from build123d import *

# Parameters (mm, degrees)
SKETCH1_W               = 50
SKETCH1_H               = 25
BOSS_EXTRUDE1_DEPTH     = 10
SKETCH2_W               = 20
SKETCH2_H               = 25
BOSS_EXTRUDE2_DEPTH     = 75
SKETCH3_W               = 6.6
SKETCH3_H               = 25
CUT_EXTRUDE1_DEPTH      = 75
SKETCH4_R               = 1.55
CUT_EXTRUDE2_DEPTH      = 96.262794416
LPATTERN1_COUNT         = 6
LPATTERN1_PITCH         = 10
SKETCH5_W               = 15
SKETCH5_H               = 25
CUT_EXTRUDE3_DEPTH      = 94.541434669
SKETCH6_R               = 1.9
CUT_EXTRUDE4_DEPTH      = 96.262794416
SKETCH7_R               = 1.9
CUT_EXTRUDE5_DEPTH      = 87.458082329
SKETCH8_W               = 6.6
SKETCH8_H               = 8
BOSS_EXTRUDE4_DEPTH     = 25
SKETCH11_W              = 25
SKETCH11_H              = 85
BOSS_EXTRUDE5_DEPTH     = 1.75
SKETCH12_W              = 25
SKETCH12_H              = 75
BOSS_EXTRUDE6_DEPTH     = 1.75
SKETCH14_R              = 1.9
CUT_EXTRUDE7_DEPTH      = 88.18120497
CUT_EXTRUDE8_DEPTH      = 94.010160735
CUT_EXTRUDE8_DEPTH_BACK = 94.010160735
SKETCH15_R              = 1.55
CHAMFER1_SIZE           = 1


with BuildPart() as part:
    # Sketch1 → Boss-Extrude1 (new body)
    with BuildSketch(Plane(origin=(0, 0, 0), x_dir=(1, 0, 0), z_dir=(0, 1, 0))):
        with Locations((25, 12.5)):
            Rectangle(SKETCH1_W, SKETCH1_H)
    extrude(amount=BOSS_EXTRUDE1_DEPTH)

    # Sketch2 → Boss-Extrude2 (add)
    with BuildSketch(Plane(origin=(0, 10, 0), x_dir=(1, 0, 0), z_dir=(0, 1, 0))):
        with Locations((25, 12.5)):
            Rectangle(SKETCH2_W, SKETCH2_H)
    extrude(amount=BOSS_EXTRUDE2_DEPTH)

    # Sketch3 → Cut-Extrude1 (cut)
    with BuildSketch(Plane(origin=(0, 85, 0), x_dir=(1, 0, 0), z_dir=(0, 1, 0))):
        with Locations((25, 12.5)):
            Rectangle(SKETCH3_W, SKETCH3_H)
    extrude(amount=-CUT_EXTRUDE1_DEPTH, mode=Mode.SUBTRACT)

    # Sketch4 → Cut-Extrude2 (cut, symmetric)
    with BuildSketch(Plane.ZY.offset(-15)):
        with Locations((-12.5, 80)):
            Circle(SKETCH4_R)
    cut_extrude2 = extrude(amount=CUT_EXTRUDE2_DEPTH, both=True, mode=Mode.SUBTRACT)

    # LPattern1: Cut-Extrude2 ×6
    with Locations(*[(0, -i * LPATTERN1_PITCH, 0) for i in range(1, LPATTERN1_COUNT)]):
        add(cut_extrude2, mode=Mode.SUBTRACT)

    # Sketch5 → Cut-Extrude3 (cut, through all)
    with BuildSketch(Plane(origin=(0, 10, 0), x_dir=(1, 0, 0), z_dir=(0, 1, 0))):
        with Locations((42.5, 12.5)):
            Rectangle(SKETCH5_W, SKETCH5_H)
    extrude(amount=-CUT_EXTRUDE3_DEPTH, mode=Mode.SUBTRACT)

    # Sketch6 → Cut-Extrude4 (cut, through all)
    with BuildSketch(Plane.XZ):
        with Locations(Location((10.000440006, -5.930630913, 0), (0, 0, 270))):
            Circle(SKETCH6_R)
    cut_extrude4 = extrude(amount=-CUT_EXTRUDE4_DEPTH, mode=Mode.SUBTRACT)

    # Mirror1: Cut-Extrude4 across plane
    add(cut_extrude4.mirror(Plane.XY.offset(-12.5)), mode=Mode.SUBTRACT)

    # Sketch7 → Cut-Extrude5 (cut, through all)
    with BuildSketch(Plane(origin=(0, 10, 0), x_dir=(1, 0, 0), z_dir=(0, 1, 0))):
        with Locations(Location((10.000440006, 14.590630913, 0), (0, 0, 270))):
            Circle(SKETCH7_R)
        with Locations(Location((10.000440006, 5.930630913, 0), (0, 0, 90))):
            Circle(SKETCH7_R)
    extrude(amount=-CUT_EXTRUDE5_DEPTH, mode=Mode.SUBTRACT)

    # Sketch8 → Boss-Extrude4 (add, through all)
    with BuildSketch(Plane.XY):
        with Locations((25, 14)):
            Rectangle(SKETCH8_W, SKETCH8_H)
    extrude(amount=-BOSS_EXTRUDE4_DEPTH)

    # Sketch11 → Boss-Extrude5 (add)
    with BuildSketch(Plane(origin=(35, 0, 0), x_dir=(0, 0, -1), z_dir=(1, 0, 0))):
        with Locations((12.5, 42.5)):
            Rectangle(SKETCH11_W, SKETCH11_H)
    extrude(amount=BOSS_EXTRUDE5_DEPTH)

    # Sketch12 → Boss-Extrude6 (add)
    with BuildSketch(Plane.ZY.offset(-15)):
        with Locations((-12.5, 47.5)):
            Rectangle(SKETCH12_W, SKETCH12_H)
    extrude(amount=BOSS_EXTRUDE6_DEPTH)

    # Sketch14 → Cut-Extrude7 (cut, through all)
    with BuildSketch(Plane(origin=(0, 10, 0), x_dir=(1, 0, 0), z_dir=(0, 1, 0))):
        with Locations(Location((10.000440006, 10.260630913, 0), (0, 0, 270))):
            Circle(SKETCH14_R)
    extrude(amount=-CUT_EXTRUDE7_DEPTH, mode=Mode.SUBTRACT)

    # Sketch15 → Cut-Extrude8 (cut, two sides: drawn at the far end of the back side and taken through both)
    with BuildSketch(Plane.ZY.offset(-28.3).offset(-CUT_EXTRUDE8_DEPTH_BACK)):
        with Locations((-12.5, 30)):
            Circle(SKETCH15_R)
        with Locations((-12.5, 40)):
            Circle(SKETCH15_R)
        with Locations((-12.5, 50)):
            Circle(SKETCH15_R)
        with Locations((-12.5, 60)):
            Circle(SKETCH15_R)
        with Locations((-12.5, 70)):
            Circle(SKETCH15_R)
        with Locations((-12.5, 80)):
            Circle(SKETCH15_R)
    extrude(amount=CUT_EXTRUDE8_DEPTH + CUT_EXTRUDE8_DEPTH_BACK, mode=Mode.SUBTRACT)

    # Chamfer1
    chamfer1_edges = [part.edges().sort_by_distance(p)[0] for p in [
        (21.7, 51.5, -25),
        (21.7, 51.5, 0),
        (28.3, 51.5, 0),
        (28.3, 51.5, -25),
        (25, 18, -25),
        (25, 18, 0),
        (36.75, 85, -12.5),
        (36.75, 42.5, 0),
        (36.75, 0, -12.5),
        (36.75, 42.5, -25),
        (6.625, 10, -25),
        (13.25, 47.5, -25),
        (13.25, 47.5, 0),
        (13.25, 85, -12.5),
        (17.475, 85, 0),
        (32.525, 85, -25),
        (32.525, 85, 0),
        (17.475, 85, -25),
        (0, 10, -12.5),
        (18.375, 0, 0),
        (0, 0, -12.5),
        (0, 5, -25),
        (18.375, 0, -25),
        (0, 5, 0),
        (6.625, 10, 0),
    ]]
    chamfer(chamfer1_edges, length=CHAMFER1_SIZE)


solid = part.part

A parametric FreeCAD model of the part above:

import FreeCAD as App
import Part
import Sketcher
from FreeCAD import Vector
Q = App.Units.Quantity


def edges_at(feature, points):
    """Names of the edges that pass closest to the given points."""
    edges = feature.Shape.Edges
    near = lambda p: min(range(len(edges)), key=lambda i: edges[i].distToShape(Part.Vertex(*p))[0])
    return sorted({f"Edge{near(p) + 1}" for p in points})


def add_polygon(sketch, points):
    """Adds a closed chain of lines whose ends are joined by coincident constraints."""
    first, n = sketch.GeometryCount, len(points)
    for a, b in zip(points, points[1:] + points[:1]):
        sketch.addGeometry(Part.LineSegment(App.Vector(*a, 0), App.Vector(*b, 0)), False)
    for i in range(n):
        sketch.addConstraint(Sketcher.Constraint("Coincident", first + i, 2, first + (i + 1) % n, 1))

doc = App.newDocument("Part")
params = doc.addObject("Spreadsheet::Sheet", "Params")
for row, (alias, value) in enumerate([
    ("sketch1_width", "50 mm"),
    ("sketch1_height", "25 mm"),
    ("pad1_length", "10 mm"),
    ("sketch2_width", "20 mm"),
    ("sketch2_height", "25 mm"),
    ("pad2_length", "75 mm"),
    ("sketch3_height", "25 mm"),
    ("sketch3_width", "6.6 mm"),
    ("pocket1_length", "75 mm"),
    ("sketch4_diameter", "3.1 mm"),
    ("pocket2_length", "192.525589 mm"),
    ("linearpattern_pitch", "10 mm"),
    ("sketch5_width", "15 mm"),
    ("sketch5_height", "25 mm"),
    ("sketch6_diameter", "3.8 mm"),
    ("sketch7_diameter", "3.8 mm"),
    ("sketch8_height", "8 mm"),
    ("sketch8_width", "6.6 mm"),
    ("pad3_length", "25 mm"),
    ("sketch9_width", "85 mm"),
    ("sketch9_height", "25 mm"),
    ("pad4_length", "1.75 mm"),
    ("sketch10_width", "75 mm"),
    ("sketch10_height", "25 mm"),
    ("pad5_length", "1.75 mm"),
    ("sketch11_diameter", "3.8 mm"),
    ("sketch12_diameter", "3.1 mm"),
    ("chamfer_size", "1 mm"),
], start=1):
    params.set(f"A{row}", alias)
    params.set(f"B{row}", "=" + value)
    params.setAlias(f"B{row}", alias)

body = doc.addObject("PartDesign::Body", "Body")

# Sketch on XZ plane
sketch1 = body.newObject("Sketcher::SketchObject", "Sketch")
sketch1.AttachmentSupport = (doc.getObject("XZ_Plane"), [""])
sketch1.MapMode = "FlatFace"
add_polygon(sketch1, [(0, -25), (0, 0), (50, 0), (50, -25)])  # lines 0-3
sketch1.addConstraint([
    Sketcher.Constraint("Vertical", 0),
    Sketcher.Constraint("Horizontal", 1),
    Sketcher.Constraint("Vertical", 2),
    Sketcher.Constraint("Horizontal", 3),
    Sketcher.Constraint("Coincident", 0, 2, -1, 1),
    Sketcher.Constraint("DistanceX", 1, 1, 1, 2, Q("50 mm")),
    Sketcher.Constraint("DistanceY", 0, 1, 0, 2, Q("25 mm")),
])
sketch1.setExpression("Constraints[9]", "Params.sketch1_width")
sketch1.setExpression("Constraints[10]", "Params.sketch1_height")
pad1 = body.newObject("PartDesign::Pad", "Pad")
pad1.Profile = sketch1
pad1.setExpression("Length", "Params.pad1_length")
pad1.Reversed = True

# Sketch on XZ plane
sketch2 = body.newObject("Sketcher::SketchObject", "Sketch001")
sketch2.AttachmentSupport = (doc.getObject("XZ_Plane"), [""])
sketch2.MapMode = "FlatFace"
sketch2.AttachmentOffset = App.Placement(Vector(0, 0, -10), App.Rotation())
add_polygon(sketch2, [(15, -25), (15, 0), (35, 0), (35, -25)])  # lines 0-3
sketch2.addConstraint([
    Sketcher.Constraint("Vertical", 0),
    Sketcher.Constraint("Horizontal", 1),
    Sketcher.Constraint("Vertical", 2),
    Sketcher.Constraint("Horizontal", 3),
    Sketcher.Constraint("PointOnObject", 0, 2, -1),
    Sketcher.Constraint("DistanceX", 1, 1, 1, 2, Q("20 mm")),
    Sketcher.Constraint("DistanceY", 0, 1, 0, 2, Q("25 mm")),
    Sketcher.Constraint("DistanceX", -1, 1, 0, 2, Q("15 mm")),
])
sketch2.setExpression("Constraints[9]", "Params.sketch2_width")
sketch2.setExpression("Constraints[10]", "Params.sketch2_height")
pad2 = body.newObject("PartDesign::Pad", "Pad001")
pad2.Profile = sketch2
pad2.setExpression("Length", "Params.pad2_length")
pad2.Reversed = True

# Sketch on XZ plane
sketch3 = body.newObject("Sketcher::SketchObject", "Sketch002")
sketch3.AttachmentSupport = (doc.getObject("XZ_Plane"), [""])
sketch3.MapMode = "FlatFace"
sketch3.AttachmentOffset = App.Placement(Vector(0, 0, -85), App.Rotation())
add_polygon(sketch3, [(22, -25), (22, 0), (28, 0), (28, -25)])  # lines 0-3
sketch3.addConstraint([
    Sketcher.Constraint("Vertical", 0),
    Sketcher.Constraint("Horizontal", 1),
    Sketcher.Constraint("Vertical", 2),
    Sketcher.Constraint("Horizontal", 3),
    Sketcher.Constraint("PointOnObject", 0, 2, -1),
    Sketcher.Constraint("DistanceY", 0, 1, 0, 2, Q("25 mm")),
    Sketcher.Constraint("DistanceX", 1, 1, 1, 2, Q("6.6 mm")),
    Sketcher.Constraint("DistanceX", -1, 1, 0, 2, Q("21.7 mm")),
])
sketch3.setExpression("Constraints[9]", "Params.sketch3_height")
sketch3.setExpression("Constraints[10]", "Params.sketch3_width")
pocket1 = body.newObject("PartDesign::Pocket", "Pocket")
pocket1.Profile = sketch3
pocket1.setExpression("Length", "Params.pocket1_length")
pocket1.Reversed = True

# Sketch on YZ plane
sketch4 = body.newObject("Sketcher::SketchObject", "Sketch003")
sketch4.AttachmentSupport = (doc.getObject("YZ_Plane"), [""])
sketch4.MapMode = "FlatFace"
sketch4.AttachmentOffset = App.Placement(Vector(0, 0, 15), App.Rotation())
sketch4.addGeometry(Part.Circle(Vector(80, -12.5, 0), Vector(0, 0, 1), 1.6), False)
sketch4.addConstraint([
    Sketcher.Constraint("Diameter", 0, Q("3.1 mm")),
    Sketcher.Constraint("DistanceX", -1, 1, 0, 3, Q("80 mm")),
    Sketcher.Constraint("DistanceY", 0, 3, -1, 1, Q("12.5 mm")),
])
sketch4.setExpression("Constraints[0]", "Params.sketch4_diameter")
pocket2 = body.newObject("PartDesign::Pocket", "Pocket001")
pocket2.Profile = sketch4
pocket2.setExpression("Length", "Params.pocket2_length")
pocket2.Midplane = True
doc.recompute()

linearpattern = body.newObject("PartDesign::LinearPattern", "LinearPattern")
linearpattern.Originals = [pocket2]
linearpattern.Direction = (doc.getObject("Y_Axis"), [""])
linearpattern.Mode = "offset"
linearpattern.setExpression("Offset", "Params.linearpattern_pitch")
linearpattern.Occurrences = 6
linearpattern.Reversed = True
body.Tip = linearpattern

# Sketch on XZ plane
sketch5 = body.newObject("Sketcher::SketchObject", "Sketch004")
sketch5.AttachmentSupport = (doc.getObject("XZ_Plane"), [""])
sketch5.MapMode = "FlatFace"
sketch5.AttachmentOffset = App.Placement(Vector(0, 0, -10), App.Rotation())
add_polygon(sketch5, [(35, -25), (35, 0), (50, 0), (50, -25)])  # lines 0-3
sketch5.addConstraint([
    Sketcher.Constraint("Vertical", 0),
    Sketcher.Constraint("Horizontal", 1),
    Sketcher.Constraint("Vertical", 2),
    Sketcher.Constraint("Horizontal", 3),
    Sketcher.Constraint("PointOnObject", 0, 2, -1),
    Sketcher.Constraint("DistanceX", 1, 1, 1, 2, Q("15 mm")),
    Sketcher.Constraint("DistanceY", 0, 1, 0, 2, Q("25 mm")),
    Sketcher.Constraint("DistanceX", -1, 1, 0, 2, Q("35 mm")),
])
sketch5.setExpression("Constraints[9]", "Params.sketch5_width")
sketch5.setExpression("Constraints[10]", "Params.sketch5_height")
pocket3 = body.newObject("PartDesign::Pocket", "Pocket002")
pocket3.Profile = sketch5
pocket3.Type = "ThroughAll"
pocket3.Reversed = True

# Sketch on XZ plane
sketch6 = body.newObject("Sketcher::SketchObject", "Sketch005")
sketch6.AttachmentSupport = (doc.getObject("XZ_Plane"), [""])
sketch6.MapMode = "FlatFace"
sketch6.addGeometry(Part.Circle(Vector(10, -5.9, 0), Vector(0, 0, 1), 1.9), False)
sketch6.addConstraint([
    Sketcher.Constraint("Diameter", 0, Q("3.8 mm")),
    Sketcher.Constraint("DistanceX", -1, 1, 0, 3, Q("10.00044 mm")),
    Sketcher.Constraint("DistanceY", 0, 3, -1, 1, Q("5.930631 mm")),
])
sketch6.setExpression("Constraints[0]", "Params.sketch6_diameter")
pocket4 = body.newObject("PartDesign::Pocket", "Pocket003")
pocket4.Profile = sketch6
pocket4.Type = "ThroughAll"
doc.recompute()

datumplane = body.newObject("PartDesign::Plane", "DatumPlane")
datumplane.AttachmentSupport = (doc.getObject("XY_Plane"), [""])
datumplane.MapMode = "FlatFace"
datumplane.AttachmentOffset = App.Placement(Vector(0, 0, -12.5), App.Rotation())
mirrored = body.newObject("PartDesign::Mirrored", "Mirrored")
mirrored.Originals = [pocket4]
mirrored.MirrorPlane = (datumplane, [""])
body.Tip = mirrored

# Sketch on XZ plane
sketch7 = body.newObject("Sketcher::SketchObject", "Sketch006")
sketch7.AttachmentSupport = (doc.getObject("XZ_Plane"), [""])
sketch7.MapMode = "FlatFace"
sketch7.AttachmentOffset = App.Placement(Vector(0, 0, -10), App.Rotation())
sketch7.addGeometry([
    Part.Circle(Vector(10, -14.6, 0), Vector(0, 0, 1), 1.9),
    Part.Circle(Vector(10, -5.9, 0), Vector(0, 0, 1), 1.9),
], False)
sketch7.addConstraint([
    Sketcher.Constraint("Equal", 0, 1),
    Sketcher.Constraint("Vertical", 0, 3, 1, 3),
    Sketcher.Constraint("Diameter", 0, Q("3.8 mm")),
    Sketcher.Constraint("DistanceY", 0, 3, 1, 3, Q("8.66 mm")),
    Sketcher.Constraint("DistanceX", -1, 1, 0, 3, Q("10.00044 mm")),
    Sketcher.Constraint("DistanceY", 0, 3, -1, 1, Q("14.590631 mm")),
])
sketch7.setExpression("Constraints[2]", "Params.sketch7_diameter")
pocket5 = body.newObject("PartDesign::Pocket", "Pocket004")
pocket5.Profile = sketch7
pocket5.Type = "ThroughAll"
pocket5.Reversed = True

# Sketch on XY plane
sketch8 = body.newObject("Sketcher::SketchObject", "Sketch007")
sketch8.AttachmentSupport = (doc.getObject("XY_Plane"), [""])
sketch8.MapMode = "FlatFace"
add_polygon(sketch8, [(22, 18), (22, 10), (28, 10), (28, 18)])  # lines 0-3
sketch8.addConstraint([
    Sketcher.Constraint("Vertical", 0),
    Sketcher.Constraint("Horizontal", 1),
    Sketcher.Constraint("Vertical", 2),
    Sketcher.Constraint("Horizontal", 3),
    Sketcher.Constraint("DistanceY", 0, 2, 0, 1, Q("8 mm")),
    Sketcher.Constraint("DistanceX", 1, 1, 1, 2, Q("6.6 mm")),
    Sketcher.Constraint("DistanceY", -1, 1, 0, 2, Q("10 mm")),
    Sketcher.Constraint("DistanceX", -1, 1, 0, 2, Q("21.7 mm")),
])
sketch8.setExpression("Constraints[8]", "Params.sketch8_height")
sketch8.setExpression("Constraints[9]", "Params.sketch8_width")
pad3 = body.newObject("PartDesign::Pad", "Pad002")
pad3.Profile = sketch8
pad3.setExpression("Length", "Params.pad3_length")
pad3.Reversed = True

# Sketch on YZ plane
sketch9 = body.newObject("Sketcher::SketchObject", "Sketch008")
sketch9.AttachmentSupport = (doc.getObject("YZ_Plane"), [""])
sketch9.MapMode = "FlatFace"
sketch9.AttachmentOffset = App.Placement(Vector(0, 0, 35), App.Rotation())
add_polygon(sketch9, [(85, 0), (0, 0), (0, -25), (85, -25)])  # lines 0-3
sketch9.addConstraint([
    Sketcher.Constraint("Horizontal", 0),
    Sketcher.Constraint("Vertical", 1),
    Sketcher.Constraint("Horizontal", 2),
    Sketcher.Constraint("Vertical", 3),
    Sketcher.Constraint("Coincident", 0, 2, -1, 1),
    Sketcher.Constraint("DistanceX", 0, 2, 0, 1, Q("85 mm")),
    Sketcher.Constraint("DistanceY", 1, 2, 1, 1, Q("25 mm")),
])
sketch9.setExpression("Constraints[9]", "Params.sketch9_width")
sketch9.setExpression("Constraints[10]", "Params.sketch9_height")
pad4 = body.newObject("PartDesign::Pad", "Pad003")
pad4.Profile = sketch9
pad4.setExpression("Length", "Params.pad4_length")

# Sketch on YZ plane
sketch10 = body.newObject("Sketcher::SketchObject", "Sketch009")
sketch10.AttachmentSupport = (doc.getObject("YZ_Plane"), [""])
sketch10.MapMode = "FlatFace"
sketch10.AttachmentOffset = App.Placement(Vector(0, 0, 15), App.Rotation())
add_polygon(sketch10, [(85, -25), (10, -25), (10, 0), (85, 0)])  # lines 0-3
sketch10.addConstraint([
    Sketcher.Constraint("Horizontal", 0),
    Sketcher.Constraint("Vertical", 1),
    Sketcher.Constraint("Horizontal", 2),
    Sketcher.Constraint("Vertical", 3),
    Sketcher.Constraint("PointOnObject", 1, 2, -1),
    Sketcher.Constraint("DistanceX", 0, 2, 0, 1, Q("75 mm")),
    Sketcher.Constraint("DistanceY", 1, 1, 1, 2, Q("25 mm")),
    Sketcher.Constraint("DistanceX", -1, 1, 0, 2, Q("10 mm")),
])
sketch10.setExpression("Constraints[9]", "Params.sketch10_width")
sketch10.setExpression("Constraints[10]", "Params.sketch10_height")
pad5 = body.newObject("PartDesign::Pad", "Pad004")
pad5.Profile = sketch10
pad5.setExpression("Length", "Params.pad5_length")
pad5.Reversed = True

# Sketch on XZ plane
sketch11 = body.newObject("Sketcher::SketchObject", "Sketch010")
sketch11.AttachmentSupport = (doc.getObject("XZ_Plane"), [""])
sketch11.MapMode = "FlatFace"
sketch11.AttachmentOffset = App.Placement(Vector(0, 0, -10), App.Rotation())
sketch11.addGeometry(Part.Circle(Vector(10, -10.3, 0), Vector(0, 0, 1), 1.9), False)
sketch11.addConstraint([
    Sketcher.Constraint("Diameter", 0, Q("3.8 mm")),
    Sketcher.Constraint("DistanceX", -1, 1, 0, 3, Q("10.00044 mm")),
    Sketcher.Constraint("DistanceY", 0, 3, -1, 1, Q("10.260631 mm")),
])
sketch11.setExpression("Constraints[0]", "Params.sketch11_diameter")
pocket6 = body.newObject("PartDesign::Pocket", "Pocket005")
pocket6.Profile = sketch11
pocket6.Type = "ThroughAll"
pocket6.Reversed = True

# Sketch on YZ plane
sketch12 = body.newObject("Sketcher::SketchObject", "Sketch011")
sketch12.AttachmentSupport = (doc.getObject("YZ_Plane"), [""])
sketch12.MapMode = "FlatFace"
sketch12.AttachmentOffset = App.Placement(Vector(0, 0, 28.3), App.Rotation())
sketch12.addGeometry([
    Part.Circle(Vector(30, -12.5, 0), Vector(0, 0, 1), 1.6),  # 0
    Part.Circle(Vector(40, -12.5, 0), Vector(0, 0, 1), 1.6),  # 1
    Part.Circle(Vector(50, -12.5, 0), Vector(0, 0, 1), 1.6),  # 2
    Part.Circle(Vector(60, -12.5, 0), Vector(0, 0, 1), 1.6),  # 3
    Part.Circle(Vector(70, -12.5, 0), Vector(0, 0, 1), 1.6),  # 4
    Part.Circle(Vector(80, -12.5, 0), Vector(0, 0, 1), 1.6),  # 5
], False)
sketch12.addConstraint([
    Sketcher.Constraint("Equal", 0, 1),
    Sketcher.Constraint("Equal", 1, 2),
    Sketcher.Constraint("Equal", 2, 3),
    Sketcher.Constraint("Equal", 3, 4),
    Sketcher.Constraint("Equal", 4, 5),
    Sketcher.Constraint("Horizontal", 0, 3, 1, 3),
    Sketcher.Constraint("Horizontal", 1, 3, 2, 3),
    Sketcher.Constraint("Horizontal", 2, 3, 3, 3),
    Sketcher.Constraint("Horizontal", 3, 3, 4, 3),
    Sketcher.Constraint("Horizontal", 4, 3, 5, 3),
    Sketcher.Constraint("Diameter", 0, Q("3.1 mm")),
    Sketcher.Constraint("DistanceX", -1, 1, 0, 3, Q("30 mm")),
    Sketcher.Constraint("DistanceX", -1, 1, 1, 3, Q("40 mm")),
    Sketcher.Constraint("DistanceX", -1, 1, 2, 3, Q("50 mm")),
    Sketcher.Constraint("DistanceX", -1, 1, 3, 3, Q("60 mm")),
    Sketcher.Constraint("DistanceX", -1, 1, 4, 3, Q("70 mm")),
    Sketcher.Constraint("DistanceX", -1, 1, 5, 3, Q("80 mm")),
    Sketcher.Constraint("DistanceY", 0, 3, -1, 1, Q("12.5 mm")),
])
sketch12.setExpression("Constraints[10]", "Params.sketch12_diameter")
pocket7 = body.newObject("PartDesign::Pocket", "Pocket006")
pocket7.Profile = sketch12
pocket7.Type = "ThroughAll"
pocket7.Midplane = True
doc.recompute()

chamfer = body.newObject("PartDesign::Chamfer", "Chamfer")
chamfer.Base = (pocket7, edges_at(pocket7, [
    (21.7, 51.5, -25),
    (21.7, 51.5, 0),
    (28.3, 51.5, 0),
    (28.3, 51.5, -25),
    (25, 18, -25),
    (25, 18, 0),
    (36.75, 85, -12.5),
    (36.75, 42.5, 0),
    (36.75, 0, -12.5),
    (36.75, 42.5, -25),
    (6.625, 10, -25),
    (13.25, 47.5, -25),
    (13.25, 47.5, 0),
    (13.25, 85, -12.5),
    (17.475, 85, 0),
    (32.525, 85, -25),
    (32.525, 85, 0),
    (17.475, 85, -25),
    (0, 10, -12.5),
    (18.375, 0, 0),
    (0, 0, -12.5),
    (0, 5, -25),
    (18.375, 0, -25),
    (0, 5, 0),
    (6.625, 10, 0),
]))
chamfer.setExpression("Size", "Params.chamfer_size")

doc.recompute()
